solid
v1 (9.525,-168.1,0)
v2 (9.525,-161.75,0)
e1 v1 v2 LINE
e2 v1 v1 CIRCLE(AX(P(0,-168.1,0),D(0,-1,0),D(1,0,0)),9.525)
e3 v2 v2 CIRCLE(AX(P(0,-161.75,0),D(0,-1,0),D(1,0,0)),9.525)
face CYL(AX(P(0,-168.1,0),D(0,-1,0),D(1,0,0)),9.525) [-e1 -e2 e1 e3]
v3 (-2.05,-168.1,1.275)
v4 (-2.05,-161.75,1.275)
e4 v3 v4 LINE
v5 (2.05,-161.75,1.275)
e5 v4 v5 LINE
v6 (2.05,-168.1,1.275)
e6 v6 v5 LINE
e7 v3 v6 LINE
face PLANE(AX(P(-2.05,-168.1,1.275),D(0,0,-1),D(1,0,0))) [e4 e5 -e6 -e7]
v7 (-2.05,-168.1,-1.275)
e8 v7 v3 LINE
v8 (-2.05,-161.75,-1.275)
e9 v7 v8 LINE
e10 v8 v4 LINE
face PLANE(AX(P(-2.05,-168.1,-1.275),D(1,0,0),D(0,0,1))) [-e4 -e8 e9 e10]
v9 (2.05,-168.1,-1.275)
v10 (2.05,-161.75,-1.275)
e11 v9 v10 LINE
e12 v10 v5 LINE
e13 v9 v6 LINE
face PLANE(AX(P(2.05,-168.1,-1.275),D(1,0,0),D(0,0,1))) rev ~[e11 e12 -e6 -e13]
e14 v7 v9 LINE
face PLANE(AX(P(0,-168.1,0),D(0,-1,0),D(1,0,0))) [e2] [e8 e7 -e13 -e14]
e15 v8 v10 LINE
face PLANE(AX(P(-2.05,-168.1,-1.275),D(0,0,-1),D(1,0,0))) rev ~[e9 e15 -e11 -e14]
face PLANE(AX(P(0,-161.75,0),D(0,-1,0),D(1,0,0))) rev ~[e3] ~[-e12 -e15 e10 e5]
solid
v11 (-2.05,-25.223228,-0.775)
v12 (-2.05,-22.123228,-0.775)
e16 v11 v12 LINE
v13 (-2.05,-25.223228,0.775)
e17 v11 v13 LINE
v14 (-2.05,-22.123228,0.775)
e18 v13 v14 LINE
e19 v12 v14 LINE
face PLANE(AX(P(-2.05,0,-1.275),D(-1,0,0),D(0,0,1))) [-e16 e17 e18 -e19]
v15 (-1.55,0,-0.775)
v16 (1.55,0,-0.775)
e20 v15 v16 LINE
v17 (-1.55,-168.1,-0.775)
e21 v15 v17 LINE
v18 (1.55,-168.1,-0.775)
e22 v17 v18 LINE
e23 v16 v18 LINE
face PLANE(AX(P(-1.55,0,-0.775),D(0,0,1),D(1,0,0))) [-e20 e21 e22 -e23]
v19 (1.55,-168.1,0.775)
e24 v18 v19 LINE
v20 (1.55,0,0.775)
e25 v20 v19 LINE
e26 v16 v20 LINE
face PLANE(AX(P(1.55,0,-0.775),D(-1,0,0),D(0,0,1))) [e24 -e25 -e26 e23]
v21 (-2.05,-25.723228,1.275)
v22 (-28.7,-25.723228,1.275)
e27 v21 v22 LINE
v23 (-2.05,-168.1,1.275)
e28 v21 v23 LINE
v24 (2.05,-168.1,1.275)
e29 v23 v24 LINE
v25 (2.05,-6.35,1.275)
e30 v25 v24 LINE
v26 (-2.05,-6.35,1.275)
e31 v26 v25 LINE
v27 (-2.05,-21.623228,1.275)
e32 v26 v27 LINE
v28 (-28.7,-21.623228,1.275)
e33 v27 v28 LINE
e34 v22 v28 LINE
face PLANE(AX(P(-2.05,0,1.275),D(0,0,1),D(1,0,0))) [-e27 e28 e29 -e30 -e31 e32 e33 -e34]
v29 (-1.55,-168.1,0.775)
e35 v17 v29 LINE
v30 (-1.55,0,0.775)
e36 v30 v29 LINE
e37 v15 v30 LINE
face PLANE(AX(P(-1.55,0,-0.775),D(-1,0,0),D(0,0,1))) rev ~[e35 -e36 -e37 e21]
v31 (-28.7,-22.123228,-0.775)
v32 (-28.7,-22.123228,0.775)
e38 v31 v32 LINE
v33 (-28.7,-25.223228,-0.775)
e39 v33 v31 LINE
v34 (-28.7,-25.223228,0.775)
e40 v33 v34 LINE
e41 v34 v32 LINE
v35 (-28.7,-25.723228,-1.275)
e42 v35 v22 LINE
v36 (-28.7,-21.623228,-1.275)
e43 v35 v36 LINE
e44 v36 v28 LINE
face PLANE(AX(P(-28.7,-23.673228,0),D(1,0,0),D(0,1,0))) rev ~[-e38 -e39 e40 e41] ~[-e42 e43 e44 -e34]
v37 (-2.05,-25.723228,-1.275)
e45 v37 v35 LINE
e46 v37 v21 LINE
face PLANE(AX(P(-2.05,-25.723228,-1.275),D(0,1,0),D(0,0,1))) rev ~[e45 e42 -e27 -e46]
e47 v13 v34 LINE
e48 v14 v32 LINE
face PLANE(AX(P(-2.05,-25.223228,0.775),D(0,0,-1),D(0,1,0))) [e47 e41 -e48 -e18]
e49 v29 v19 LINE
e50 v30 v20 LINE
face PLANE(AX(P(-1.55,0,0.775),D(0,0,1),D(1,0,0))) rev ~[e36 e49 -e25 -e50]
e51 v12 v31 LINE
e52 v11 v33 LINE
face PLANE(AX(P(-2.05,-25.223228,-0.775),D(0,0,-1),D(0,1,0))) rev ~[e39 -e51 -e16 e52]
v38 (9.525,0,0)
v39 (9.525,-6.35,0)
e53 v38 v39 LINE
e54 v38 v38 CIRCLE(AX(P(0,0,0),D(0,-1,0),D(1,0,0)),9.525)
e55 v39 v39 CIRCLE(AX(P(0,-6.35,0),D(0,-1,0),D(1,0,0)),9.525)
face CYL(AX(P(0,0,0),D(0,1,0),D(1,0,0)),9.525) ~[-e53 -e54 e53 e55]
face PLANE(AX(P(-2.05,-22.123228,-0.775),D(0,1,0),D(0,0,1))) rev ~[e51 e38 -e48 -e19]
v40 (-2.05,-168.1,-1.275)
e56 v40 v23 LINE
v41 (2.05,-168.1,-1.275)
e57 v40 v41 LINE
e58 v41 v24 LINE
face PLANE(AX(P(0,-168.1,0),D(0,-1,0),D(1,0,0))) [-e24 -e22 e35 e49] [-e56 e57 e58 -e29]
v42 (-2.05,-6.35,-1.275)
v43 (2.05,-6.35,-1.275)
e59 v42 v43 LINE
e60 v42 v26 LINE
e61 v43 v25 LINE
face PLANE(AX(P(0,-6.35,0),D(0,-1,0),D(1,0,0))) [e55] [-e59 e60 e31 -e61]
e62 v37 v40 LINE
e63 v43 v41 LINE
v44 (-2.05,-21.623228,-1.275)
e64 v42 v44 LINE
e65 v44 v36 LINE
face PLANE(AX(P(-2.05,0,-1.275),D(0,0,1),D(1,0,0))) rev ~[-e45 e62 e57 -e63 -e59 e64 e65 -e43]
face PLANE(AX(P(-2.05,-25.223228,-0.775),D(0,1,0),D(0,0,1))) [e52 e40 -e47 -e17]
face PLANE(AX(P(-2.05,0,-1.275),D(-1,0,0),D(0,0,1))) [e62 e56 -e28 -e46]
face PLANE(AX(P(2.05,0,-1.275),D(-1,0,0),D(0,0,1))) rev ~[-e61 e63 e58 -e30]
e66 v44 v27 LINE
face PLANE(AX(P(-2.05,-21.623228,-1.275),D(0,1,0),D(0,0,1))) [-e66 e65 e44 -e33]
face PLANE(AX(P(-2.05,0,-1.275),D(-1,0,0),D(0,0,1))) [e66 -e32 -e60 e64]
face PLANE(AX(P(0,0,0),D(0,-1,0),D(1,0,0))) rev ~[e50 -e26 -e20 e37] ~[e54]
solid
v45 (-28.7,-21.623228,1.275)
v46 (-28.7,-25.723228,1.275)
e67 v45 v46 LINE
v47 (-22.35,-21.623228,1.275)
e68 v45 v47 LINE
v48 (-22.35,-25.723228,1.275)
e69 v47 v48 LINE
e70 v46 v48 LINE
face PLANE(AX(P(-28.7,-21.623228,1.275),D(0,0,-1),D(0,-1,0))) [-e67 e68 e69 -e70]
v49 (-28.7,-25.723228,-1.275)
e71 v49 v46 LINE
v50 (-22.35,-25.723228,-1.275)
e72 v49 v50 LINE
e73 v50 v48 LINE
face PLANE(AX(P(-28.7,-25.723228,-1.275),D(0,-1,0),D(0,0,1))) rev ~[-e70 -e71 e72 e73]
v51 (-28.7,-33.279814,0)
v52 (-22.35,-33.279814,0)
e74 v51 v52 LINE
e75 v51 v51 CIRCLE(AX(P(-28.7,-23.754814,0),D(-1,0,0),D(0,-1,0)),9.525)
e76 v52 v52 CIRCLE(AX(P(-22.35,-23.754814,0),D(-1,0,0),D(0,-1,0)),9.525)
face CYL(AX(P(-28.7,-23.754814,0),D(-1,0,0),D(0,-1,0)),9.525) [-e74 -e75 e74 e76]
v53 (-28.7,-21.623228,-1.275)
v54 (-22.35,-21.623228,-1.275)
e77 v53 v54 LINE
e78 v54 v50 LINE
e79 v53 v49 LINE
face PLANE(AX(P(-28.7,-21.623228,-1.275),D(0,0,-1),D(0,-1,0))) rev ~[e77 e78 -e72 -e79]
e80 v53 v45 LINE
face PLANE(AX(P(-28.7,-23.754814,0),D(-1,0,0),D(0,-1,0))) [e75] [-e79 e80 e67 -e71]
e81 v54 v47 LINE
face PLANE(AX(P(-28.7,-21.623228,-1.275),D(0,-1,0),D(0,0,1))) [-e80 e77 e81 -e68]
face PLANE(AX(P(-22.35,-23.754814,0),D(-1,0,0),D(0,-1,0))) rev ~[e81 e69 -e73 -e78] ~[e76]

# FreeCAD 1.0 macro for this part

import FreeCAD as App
import Part
import Sketcher

V = App.Vector


def add_polygon(sketch, points):
    """Adds a closed chain of lines whose ends are joined by coincident constraints."""
    first, n = sketch.GeometryCount, len(points)
    for a, b in zip(points, points[1:] + points[:1]):
        sketch.addGeometry(Part.LineSegment(App.Vector(*a, 0), App.Vector(*b, 0)), False)
    for i in range(n):
        sketch.addConstraint(Sketcher.Constraint("Coincident", first + i, 2, first + (i + 1) % n, 1))

doc = App.newDocument("Part")
body = doc.addObject("PartDesign::Body", "Body")

sketch1 = body.newObject("Sketcher::SketchObject", "Sketch")
sketch1.AttachmentSupport = (doc.getObject("XZ_Plane"), [""])
sketch1.MapMode = "FlatFace"
add_polygon(sketch1, [(-2, 1.3), (-2, -1.3), (2, -1.3), (2, 1.3)])
add_polygon(sketch1, [(1.6, -0.8), (-1.6, -0.8), (-1.6, 0.8), (1.6, 0.8)])
sketch1.addConstraint(Sketcher.Constraint("Vertical", 0))
sketch1.addConstraint(Sketcher.Constraint("Horizontal", 1))
sketch1.addConstraint(Sketcher.Constraint("Vertical", 2))
sketch1.addConstraint(Sketcher.Constraint("Horizontal", 3))
sketch1.addConstraint(Sketcher.Constraint("Horizontal", 4))
sketch1.addConstraint(Sketcher.Constraint("Vertical", 5))
sketch1.addConstraint(Sketcher.Constraint("Horizontal", 6))
sketch1.addConstraint(Sketcher.Constraint("Vertical", 7))
sketch1.addConstraint(Sketcher.Constraint("Symmetric", 0, 2, 2, 2, -1, 1))
sketch1.addConstraint(Sketcher.Constraint("Symmetric", 4, 2, 6, 2, -1, 1))
sketch1.addConstraint(Sketcher.Constraint("DistanceX", 1, 1, 1, 2, 4.1))
sketch1.addConstraint(Sketcher.Constraint("DistanceX", 4, 2, 4, 1, 3.1))
sketch1.addConstraint(Sketcher.Constraint("DistanceY", 0, 2, 0, 1, 2.55))
sketch1.addConstraint(Sketcher.Constraint("DistanceY", 5, 1, 5, 2, 1.55))
pad1 = body.newObject("PartDesign::Pad", "Pad")
pad1.Profile = sketch1
pad1.Length = 168.1

sketch2 = body.newObject("Sketcher::SketchObject", "Sketch001")
sketch2.AttachmentSupport = (doc.getObject("XZ_Plane"), [""])
sketch2.MapMode = "FlatFace"
sketch2.addGeometry(Part.Circle(V(0, 0, 0), V(0, 0, 1), 9.5), False)
add_polygon(sketch2, [(2, -1.3), (-2, -1.3), (-2, 1.3), (2, 1.3)])
sketch2.addConstraint(Sketcher.Constraint("Horizontal", 1))
sketch2.addConstraint(Sketcher.Constraint("Vertical", 2))
sketch2.addConstraint(Sketcher.Constraint("Horizontal", 3))
sketch2.addConstraint(Sketcher.Constraint("Vertical", 4))
sketch2.addConstraint(Sketcher.Constraint("Coincident", 0, 3, -1, 1))
sketch2.addConstraint(Sketcher.Constraint("Symmetric", 1, 2, 3, 2, -1, 1))
sketch2.addConstraint(Sketcher.Constraint("Diameter", 0, 19.05))
sketch2.addConstraint(Sketcher.Constraint("DistanceX", 1, 2, 1, 1, 4.1))
sketch2.addConstraint(Sketcher.Constraint("DistanceY", 2, 1, 2, 2, 2.55))
pad2 = body.newObject("PartDesign::Pad", "Pad001")
pad2.Profile = sketch2
pad2.Length = 6.35

sketch3 = body.newObject("Sketcher::SketchObject", "Sketch002")
sketch3.AttachmentSupport = (doc.getObject("YZ_Plane"), [""])
sketch3.MapMode = "FlatFace"
sketch3.AttachmentOffset = App.Placement(V(0, 0, -2.05), App.Rotation())
add_polygon(sketch3, [(-25.7, 1.3), (-25.7, -1.3), (-21.6, -1.3), (-21.6, 1.3)])
add_polygon(sketch3, [(-22.1, -0.8), (-25.2, -0.8), (-25.2, 0.8), (-22.1, 0.8)])
sketch3.addConstraint(Sketcher.Constraint("Vertical", 0))
sketch3.addConstraint(Sketcher.Constraint("Horizontal", 1))
sketch3.addConstraint(Sketcher.Constraint("Vertical", 2))
sketch3.addConstraint(Sketcher.Constraint("Horizontal", 3))
sketch3.addConstraint(Sketcher.Constraint("Horizontal", 4))
sketch3.addConstraint(Sketcher.Constraint("Vertical", 5))
sketch3.addConstraint(Sketcher.Constraint("Horizontal", 6))
sketch3.addConstraint(Sketcher.Constraint("Vertical", 7))
sketch3.addConstraint(Sketcher.Constraint("DistanceX", 1, 1, 1, 2, 4.1))
sketch3.addConstraint(Sketcher.Constraint("DistanceX", 4, 2, 4, 1, 3.1))
sketch3.addConstraint(Sketcher.Constraint("DistanceY", 0, 2, 0, 1, 2.55))
sketch3.addConstraint(Sketcher.Constraint("DistanceY", 5, 1, 5, 2, 1.55))
sketch3.addConstraint(Sketcher.Constraint("DistanceX", 0, 2, 4, 2, 0.5))
sketch3.addConstraint(Sketcher.Constraint("DistanceY", 0, 2, 4, 2, 0.5))
sketch3.addConstraint(Sketcher.Constraint("DistanceY", 0, 2, -1, 1, 1.275))
sketch3.addConstraint(Sketcher.Constraint("DistanceX", 0, 2, -1, 1, 25.723228))
pad3 = body.newObject("PartDesign::Pad", "Pad002")
pad3.Profile = sketch3
pad3.Length = 26.65
pad3.Reversed = True
body2 = doc.addObject("PartDesign::Body", "Body001")

sketch4 = body2.newObject("Sketcher::SketchObject", "Sketch003")
sketch4.AttachmentSupport = (doc.getObject("XZ_Plane001"), [""])
sketch4.MapMode = "FlatFace"
sketch4.AttachmentOffset = App.Placement(V(0, 0, 168.1), App.Rotation())
sketch4.addGeometry(Part.Circle(V(0, 0, 0), V(0, 0, 1), 9.5), False)
add_polygon(sketch4, [(2, -1.3), (-2, -1.3), (-2, 1.3), (2, 1.3)])
sketch4.addConstraint(Sketcher.Constraint("Horizontal", 1))
sketch4.addConstraint(Sketcher.Constraint("Vertical", 2))
sketch4.addConstraint(Sketcher.Constraint("Horizontal", 3))
sketch4.addConstraint(Sketcher.Constraint("Vertical", 4))
sketch4.addConstraint(Sketcher.Constraint("Coincident", 0, 3, -1, 1))
sketch4.addConstraint(Sketcher.Constraint("Symmetric", 1, 2, 3, 2, -1, 1))
sketch4.addConstraint(Sketcher.Constraint("Diameter", 0, 19.05))
sketch4.addConstraint(Sketcher.Constraint("DistanceX", 1, 2, 1, 1, 4.1))
sketch4.addConstraint(Sketcher.Constraint("DistanceY", 2, 1, 2, 2, 2.55))
pad4 = body2.newObject("PartDesign::Pad", "Pad003")
pad4.Profile = sketch4
pad4.Length = 6.35
pad4.Reversed = True
body3 = doc.addObject("PartDesign::Body", "Body002")

sketch5 = body3.newObject("Sketcher::SketchObject", "Sketch004")
sketch5.AttachmentSupport = (doc.getObject("YZ_Plane002"), [""])
sketch5.MapMode = "FlatFace"
sketch5.AttachmentOffset = App.Placement(V(0, 0, -28.7), App.Rotation())
sketch5.addGeometry(Part.Circle(V(-23.8, 0, 0), V(0, 0, 1), 9.5), False)
add_polygon(sketch5, [(-25.7, -1.3), (-21.6, -1.3), (-21.6, 1.3), (-25.7, 1.3)])
sketch5.addConstraint(Sketcher.Constraint("Horizontal", 1))
sketch5.addConstraint(Sketcher.Constraint("Vertical", 2))
sketch5.addConstraint(Sketcher.Constraint("Horizontal", 3))
sketch5.addConstraint(Sketcher.Constraint("Vertical", 4))
sketch5.addConstraint(Sketcher.Constraint("PointOnObject", 0, 3, -1))
sketch5.addConstraint(Sketcher.Constraint("Diameter", 0, 19.05))
sketch5.addConstraint(Sketcher.Constraint("DistanceX", 1, 1, 1, 2, 4.1))
sketch5.addConstraint(Sketcher.Constraint("DistanceY", 2, 1, 2, 2, 2.55))
sketch5.addConstraint(Sketcher.Constraint("DistanceY", 1, 2, -1, 1, 1.275))
sketch5.addConstraint(Sketcher.Constraint("DistanceX", 0, 3, -1, 1, 23.754814))
sketch5.addConstraint(Sketcher.Constraint("DistanceX", 1, 2, -1, 1, 21.623228))
pad5 = body3.newObject("PartDesign::Pad", "Pad004")
pad5.Profile = sketch5
pad5.Length = 6.35

doc.recompute()
